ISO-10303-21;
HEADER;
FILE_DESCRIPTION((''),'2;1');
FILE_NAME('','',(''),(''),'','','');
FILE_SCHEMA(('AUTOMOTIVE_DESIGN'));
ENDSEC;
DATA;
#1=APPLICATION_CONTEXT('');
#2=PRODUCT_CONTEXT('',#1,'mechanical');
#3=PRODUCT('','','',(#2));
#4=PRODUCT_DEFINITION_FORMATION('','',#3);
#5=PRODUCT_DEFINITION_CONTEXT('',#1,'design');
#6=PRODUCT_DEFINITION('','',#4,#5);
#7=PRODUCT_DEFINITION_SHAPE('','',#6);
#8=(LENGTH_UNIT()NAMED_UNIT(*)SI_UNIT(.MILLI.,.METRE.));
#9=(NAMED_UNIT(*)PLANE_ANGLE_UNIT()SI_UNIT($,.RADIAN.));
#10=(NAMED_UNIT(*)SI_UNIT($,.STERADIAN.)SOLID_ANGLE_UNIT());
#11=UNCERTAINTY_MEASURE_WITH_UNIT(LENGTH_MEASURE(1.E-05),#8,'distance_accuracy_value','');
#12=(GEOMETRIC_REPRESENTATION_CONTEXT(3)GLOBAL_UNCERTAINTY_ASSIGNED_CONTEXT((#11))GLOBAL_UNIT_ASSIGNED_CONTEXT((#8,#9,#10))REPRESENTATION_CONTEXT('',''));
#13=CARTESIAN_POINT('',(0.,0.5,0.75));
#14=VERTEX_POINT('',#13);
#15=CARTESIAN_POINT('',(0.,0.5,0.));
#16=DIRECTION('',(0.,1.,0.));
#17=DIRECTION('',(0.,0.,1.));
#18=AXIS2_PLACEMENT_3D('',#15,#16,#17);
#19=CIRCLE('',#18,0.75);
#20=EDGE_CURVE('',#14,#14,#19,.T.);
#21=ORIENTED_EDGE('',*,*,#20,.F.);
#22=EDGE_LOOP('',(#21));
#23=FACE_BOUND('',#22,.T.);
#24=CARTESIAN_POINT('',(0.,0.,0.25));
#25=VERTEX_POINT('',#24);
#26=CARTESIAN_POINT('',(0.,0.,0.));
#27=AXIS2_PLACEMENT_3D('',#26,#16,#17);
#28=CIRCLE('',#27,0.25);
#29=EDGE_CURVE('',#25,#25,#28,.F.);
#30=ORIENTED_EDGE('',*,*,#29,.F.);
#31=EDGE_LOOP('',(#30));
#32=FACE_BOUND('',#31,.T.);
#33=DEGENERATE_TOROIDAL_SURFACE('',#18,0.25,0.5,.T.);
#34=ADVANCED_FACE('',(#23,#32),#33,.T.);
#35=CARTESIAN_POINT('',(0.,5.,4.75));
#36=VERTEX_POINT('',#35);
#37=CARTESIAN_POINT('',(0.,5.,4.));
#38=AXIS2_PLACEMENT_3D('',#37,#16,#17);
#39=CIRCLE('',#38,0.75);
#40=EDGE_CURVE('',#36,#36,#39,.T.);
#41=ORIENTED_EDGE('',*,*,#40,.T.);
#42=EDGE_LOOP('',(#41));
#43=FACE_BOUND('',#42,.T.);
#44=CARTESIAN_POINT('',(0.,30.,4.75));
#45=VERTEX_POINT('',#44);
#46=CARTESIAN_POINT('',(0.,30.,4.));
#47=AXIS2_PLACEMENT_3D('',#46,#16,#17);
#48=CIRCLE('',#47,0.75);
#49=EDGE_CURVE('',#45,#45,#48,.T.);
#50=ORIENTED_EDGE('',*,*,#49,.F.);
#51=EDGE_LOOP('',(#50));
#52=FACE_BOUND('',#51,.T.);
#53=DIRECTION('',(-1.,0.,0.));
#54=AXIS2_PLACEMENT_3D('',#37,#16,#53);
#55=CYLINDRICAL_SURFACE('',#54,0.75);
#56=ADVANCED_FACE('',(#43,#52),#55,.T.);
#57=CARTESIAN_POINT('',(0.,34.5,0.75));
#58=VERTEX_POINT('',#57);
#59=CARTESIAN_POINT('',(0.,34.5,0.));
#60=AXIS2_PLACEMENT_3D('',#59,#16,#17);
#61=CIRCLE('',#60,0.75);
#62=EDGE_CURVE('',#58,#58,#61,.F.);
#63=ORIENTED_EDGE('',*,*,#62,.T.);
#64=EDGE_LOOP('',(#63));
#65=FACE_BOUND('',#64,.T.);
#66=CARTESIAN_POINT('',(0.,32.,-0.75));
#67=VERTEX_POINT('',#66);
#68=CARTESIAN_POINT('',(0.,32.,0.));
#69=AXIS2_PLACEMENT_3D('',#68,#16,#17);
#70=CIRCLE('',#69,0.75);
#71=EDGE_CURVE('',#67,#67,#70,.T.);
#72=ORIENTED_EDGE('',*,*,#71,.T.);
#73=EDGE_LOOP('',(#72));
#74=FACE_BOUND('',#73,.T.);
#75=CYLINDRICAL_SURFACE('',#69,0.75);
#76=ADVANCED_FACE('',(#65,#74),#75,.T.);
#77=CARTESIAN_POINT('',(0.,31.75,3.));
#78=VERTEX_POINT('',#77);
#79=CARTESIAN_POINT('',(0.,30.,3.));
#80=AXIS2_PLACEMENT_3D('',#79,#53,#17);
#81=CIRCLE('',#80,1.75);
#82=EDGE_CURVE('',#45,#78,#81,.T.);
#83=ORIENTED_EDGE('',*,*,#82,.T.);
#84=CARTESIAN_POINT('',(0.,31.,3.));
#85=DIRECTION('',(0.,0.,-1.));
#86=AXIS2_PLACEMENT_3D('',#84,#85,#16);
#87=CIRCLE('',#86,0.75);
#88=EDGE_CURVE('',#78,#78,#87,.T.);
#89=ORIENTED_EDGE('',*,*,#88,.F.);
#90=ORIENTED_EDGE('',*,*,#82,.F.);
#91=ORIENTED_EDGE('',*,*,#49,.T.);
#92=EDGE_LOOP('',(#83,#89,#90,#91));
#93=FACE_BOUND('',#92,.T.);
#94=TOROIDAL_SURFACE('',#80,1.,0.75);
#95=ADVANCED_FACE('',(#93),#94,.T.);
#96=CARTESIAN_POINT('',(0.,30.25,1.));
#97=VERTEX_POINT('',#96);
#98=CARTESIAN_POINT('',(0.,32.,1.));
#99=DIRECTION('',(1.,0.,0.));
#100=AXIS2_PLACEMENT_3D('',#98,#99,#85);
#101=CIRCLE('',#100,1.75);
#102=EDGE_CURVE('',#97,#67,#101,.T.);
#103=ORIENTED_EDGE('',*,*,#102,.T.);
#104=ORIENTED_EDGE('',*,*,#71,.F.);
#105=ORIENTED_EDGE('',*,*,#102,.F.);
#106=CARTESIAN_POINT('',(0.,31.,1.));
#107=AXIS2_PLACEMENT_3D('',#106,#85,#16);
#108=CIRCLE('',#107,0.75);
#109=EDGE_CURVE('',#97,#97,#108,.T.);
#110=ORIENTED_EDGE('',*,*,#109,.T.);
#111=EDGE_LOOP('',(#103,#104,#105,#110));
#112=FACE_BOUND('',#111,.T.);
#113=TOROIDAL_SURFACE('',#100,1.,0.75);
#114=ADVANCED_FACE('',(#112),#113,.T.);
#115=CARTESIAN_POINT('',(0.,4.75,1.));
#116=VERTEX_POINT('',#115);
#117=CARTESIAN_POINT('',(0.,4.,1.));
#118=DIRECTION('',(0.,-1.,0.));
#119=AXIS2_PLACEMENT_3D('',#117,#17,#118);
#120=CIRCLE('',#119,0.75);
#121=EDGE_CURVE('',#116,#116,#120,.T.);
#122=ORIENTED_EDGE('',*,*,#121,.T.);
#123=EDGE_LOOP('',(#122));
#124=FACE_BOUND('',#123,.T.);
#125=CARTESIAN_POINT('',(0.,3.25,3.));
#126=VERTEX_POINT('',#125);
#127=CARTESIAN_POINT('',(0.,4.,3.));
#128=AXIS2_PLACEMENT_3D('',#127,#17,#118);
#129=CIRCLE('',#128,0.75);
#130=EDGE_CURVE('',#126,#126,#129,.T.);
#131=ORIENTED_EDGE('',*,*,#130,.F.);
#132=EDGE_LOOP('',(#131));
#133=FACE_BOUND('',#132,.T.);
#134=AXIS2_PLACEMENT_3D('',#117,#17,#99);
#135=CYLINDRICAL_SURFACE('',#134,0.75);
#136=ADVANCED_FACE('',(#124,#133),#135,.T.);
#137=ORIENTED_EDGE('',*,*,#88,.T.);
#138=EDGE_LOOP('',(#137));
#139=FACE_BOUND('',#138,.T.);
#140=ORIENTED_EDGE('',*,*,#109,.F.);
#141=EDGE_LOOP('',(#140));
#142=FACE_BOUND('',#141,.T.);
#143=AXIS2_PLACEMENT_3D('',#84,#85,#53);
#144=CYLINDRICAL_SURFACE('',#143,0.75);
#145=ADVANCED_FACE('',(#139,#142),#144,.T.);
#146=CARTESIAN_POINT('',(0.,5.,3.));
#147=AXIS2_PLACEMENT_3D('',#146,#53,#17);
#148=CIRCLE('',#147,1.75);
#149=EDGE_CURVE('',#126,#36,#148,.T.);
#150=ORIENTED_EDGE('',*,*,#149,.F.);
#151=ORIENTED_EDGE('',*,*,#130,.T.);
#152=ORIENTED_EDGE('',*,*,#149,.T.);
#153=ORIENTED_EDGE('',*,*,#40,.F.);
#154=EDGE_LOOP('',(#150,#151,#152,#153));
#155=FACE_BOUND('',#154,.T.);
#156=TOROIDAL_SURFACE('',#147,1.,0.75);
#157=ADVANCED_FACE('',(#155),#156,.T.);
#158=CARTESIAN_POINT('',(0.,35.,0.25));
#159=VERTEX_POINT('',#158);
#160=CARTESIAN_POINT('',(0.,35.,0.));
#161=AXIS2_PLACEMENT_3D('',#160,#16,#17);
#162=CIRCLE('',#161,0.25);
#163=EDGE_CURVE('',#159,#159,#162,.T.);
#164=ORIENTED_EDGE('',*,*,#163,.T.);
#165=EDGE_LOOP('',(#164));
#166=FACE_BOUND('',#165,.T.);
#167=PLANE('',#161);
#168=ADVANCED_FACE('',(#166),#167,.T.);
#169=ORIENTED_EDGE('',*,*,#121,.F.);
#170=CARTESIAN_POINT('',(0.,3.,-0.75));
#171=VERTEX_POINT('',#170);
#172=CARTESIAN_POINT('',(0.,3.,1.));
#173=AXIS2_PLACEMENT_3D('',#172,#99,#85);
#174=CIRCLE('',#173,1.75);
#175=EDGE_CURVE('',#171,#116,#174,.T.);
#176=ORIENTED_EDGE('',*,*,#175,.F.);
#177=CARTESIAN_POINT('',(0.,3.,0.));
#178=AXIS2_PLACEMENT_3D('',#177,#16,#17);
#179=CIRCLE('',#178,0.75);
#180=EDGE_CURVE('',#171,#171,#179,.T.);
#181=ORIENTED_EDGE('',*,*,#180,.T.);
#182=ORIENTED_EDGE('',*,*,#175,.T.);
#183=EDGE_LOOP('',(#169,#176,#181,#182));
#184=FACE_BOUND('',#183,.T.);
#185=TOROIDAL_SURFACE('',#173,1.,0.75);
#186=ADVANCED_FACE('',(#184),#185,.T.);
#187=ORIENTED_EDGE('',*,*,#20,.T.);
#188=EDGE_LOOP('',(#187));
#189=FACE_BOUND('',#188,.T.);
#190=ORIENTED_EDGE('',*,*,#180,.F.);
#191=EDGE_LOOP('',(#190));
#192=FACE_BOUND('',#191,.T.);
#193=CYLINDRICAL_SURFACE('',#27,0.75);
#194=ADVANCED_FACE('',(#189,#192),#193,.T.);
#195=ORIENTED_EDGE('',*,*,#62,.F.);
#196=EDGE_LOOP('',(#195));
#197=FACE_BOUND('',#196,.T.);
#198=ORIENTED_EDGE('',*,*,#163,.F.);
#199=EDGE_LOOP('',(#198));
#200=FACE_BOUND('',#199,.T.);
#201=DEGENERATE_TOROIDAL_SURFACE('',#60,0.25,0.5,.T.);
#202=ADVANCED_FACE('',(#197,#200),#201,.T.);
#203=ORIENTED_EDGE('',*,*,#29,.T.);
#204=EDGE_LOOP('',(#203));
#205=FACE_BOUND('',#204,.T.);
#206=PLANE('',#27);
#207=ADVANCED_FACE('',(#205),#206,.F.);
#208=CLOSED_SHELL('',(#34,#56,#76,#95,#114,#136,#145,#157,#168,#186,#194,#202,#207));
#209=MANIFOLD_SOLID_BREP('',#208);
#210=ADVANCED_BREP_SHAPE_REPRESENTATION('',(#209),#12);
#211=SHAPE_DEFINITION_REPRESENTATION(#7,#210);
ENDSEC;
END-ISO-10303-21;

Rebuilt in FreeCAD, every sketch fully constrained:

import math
import FreeCAD as App
import Part
import Sketcher

V = App.Vector
Q = App.Units.Quantity


def edges_at(feature, points):
    """Names of the edges that pass closest to the given points."""
    edges = feature.Shape.Edges
    near = lambda p: min(range(len(edges)), key=lambda i: edges[i].distToShape(Part.Vertex(*p))[0])
    return sorted({f"Edge{near(p) + 1}" for p in points})

doc = App.newDocument("Part")
body = doc.addObject("PartDesign::Body", "Body")

# Sketch on XZ plane
sketch1 = body.newObject("Sketcher::SketchObject", "Sketch")
sketch1.AttachmentSupport = (doc.getObject("XZ_Plane"), [""])
sketch1.MapMode = "FlatFace"
sketch1.addGeometry(Part.Circle(V(0, 0, 0), V(0, 0, 1), 0.75), False)
sketch1.addConstraint([
    Sketcher.Constraint("Coincident", 0, 3, -1, 1),
    Sketcher.Constraint("Diameter", 0, Q("1.5 mm")),
])

# Sketch on YZ plane
sketch2 = body.newObject("Sketcher::SketchObject", "Sketch001")
sketch2.AttachmentSupport = (doc.getObject("YZ_Plane"), [""])
sketch2.MapMode = "FlatFace"
sketch2.addGeometry([
    Part.LineSegment(V(0, 0, 0), V(3, 0, 0)),  # 0
    Part.ArcOfCircle(Part.Circle(V(3, 1, 0), V(0, 0, 1), 1), math.radians(-90), math.radians(0)),  # 1
    Part.LineSegment(V(4, 1, 0), V(4, 3, 0)),  # 2
    Part.ArcOfCircle(Part.Circle(V(5, 3, 0), V(0, 0, 1), 1), math.radians(90), math.radians(180)),  # 3
    Part.LineSegment(V(5, 4, 0), V(30, 4, 0)),  # 4
    Part.ArcOfCircle(Part.Circle(V(30, 3, 0), V(0, 0, 1), 1), math.radians(0), math.radians(90)),  # 5
    Part.LineSegment(V(31, 3, 0), V(31, 1, 0)),  # 6
    Part.ArcOfCircle(Part.Circle(V(32, 1, 0), V(0, 0, 1), 1), math.radians(-180), math.radians(-90)),  # 7
    Part.LineSegment(V(32, 0, 0), V(35, 0, 0)),  # 8
], False)
sketch2.addConstraint([
    Sketcher.Constraint("Tangent", 0, 2, 1, 1),
    Sketcher.Constraint("Tangent", 1, 2, 2, 1),
    Sketcher.Constraint("Tangent", 2, 2, 3, 2),
    Sketcher.Constraint("Tangent", 3, 1, 4, 1),
    Sketcher.Constraint("Tangent", 4, 2, 5, 2),
    Sketcher.Constraint("Tangent", 5, 1, 6, 1),
    Sketcher.Constraint("Tangent", 6, 2, 7, 1),
    Sketcher.Constraint("Tangent", 7, 2, 8, 1),
    Sketcher.Constraint("Horizontal", 0),
    Sketcher.Constraint("Vertical", 2),
    Sketcher.Constraint("Horizontal", 4),
    Sketcher.Constraint("Vertical", 6),
    Sketcher.Constraint("Horizontal", 8),
    Sketcher.Constraint("Coincident", 0, 1, -1, 1),
    Sketcher.Constraint("Equal", 1, 3),
    Sketcher.Constraint("Equal", 3, 5),
    Sketcher.Constraint("Equal", 5, 7),
    Sketcher.Constraint("PointOnObject", 7, 2, -1),
    Sketcher.Constraint("Equal", 0, 8),
    Sketcher.Constraint("Radius", 1, Q("1 mm")),
    Sketcher.Constraint("DistanceX", 0, 1, 0, 2, Q("3 mm")),
    Sketcher.Constraint("DistanceX", 4, 1, 4, 2, Q("25 mm")),
    Sketcher.Constraint("DistanceY", 2, 1, 2, 2, Q("2 mm")),
])
doc.recompute()

additivepipe = body.newObject("PartDesign::AdditivePipe", "AdditivePipe")
additivepipe.Profile = sketch1
additivepipe.Spine = (sketch2, ["Edge1", "Edge2", "Edge3", "Edge4", "Edge5", "Edge6", "Edge7", "Edge8", "Edge9"])
doc.recompute()

fillet = body.newObject("PartDesign::Fillet", "Fillet")
fillet.Base = (additivepipe, edges_at(additivepipe, [(-0.75, 35, 0), (-0.75, 0, 0)]))
fillet.Radius = 0.5

doc.recompute()
